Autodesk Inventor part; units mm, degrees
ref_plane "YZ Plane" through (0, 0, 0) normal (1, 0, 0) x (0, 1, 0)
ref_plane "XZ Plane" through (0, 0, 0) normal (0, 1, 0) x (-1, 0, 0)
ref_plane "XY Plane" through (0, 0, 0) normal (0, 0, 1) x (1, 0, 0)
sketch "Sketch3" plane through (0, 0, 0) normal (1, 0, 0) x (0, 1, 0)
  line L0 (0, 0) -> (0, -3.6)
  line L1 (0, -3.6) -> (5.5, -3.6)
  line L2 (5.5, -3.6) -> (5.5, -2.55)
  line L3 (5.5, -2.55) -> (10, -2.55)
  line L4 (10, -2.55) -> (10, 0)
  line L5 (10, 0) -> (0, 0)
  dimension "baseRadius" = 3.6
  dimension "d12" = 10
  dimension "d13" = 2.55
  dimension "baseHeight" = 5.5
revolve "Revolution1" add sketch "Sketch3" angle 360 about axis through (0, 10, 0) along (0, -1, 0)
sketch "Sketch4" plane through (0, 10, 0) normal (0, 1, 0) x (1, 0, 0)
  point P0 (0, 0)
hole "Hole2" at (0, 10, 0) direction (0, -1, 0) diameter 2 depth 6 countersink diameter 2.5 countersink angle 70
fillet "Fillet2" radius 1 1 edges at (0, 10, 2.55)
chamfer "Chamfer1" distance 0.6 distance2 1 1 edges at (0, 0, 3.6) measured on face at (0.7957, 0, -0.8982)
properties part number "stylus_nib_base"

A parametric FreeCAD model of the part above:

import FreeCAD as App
import Part
import Sketcher
Q = App.Units.Quantity


def edges_at(feature, points):
    """Names of the edges that pass closest to the given points."""
    edges = feature.Shape.Edges
    near = lambda p: min(range(len(edges)), key=lambda i: edges[i].distToShape(Part.Vertex(*p))[0])
    return sorted({f"Edge{near(p) + 1}" for p in points})

doc = App.newDocument("Part")
params = doc.addObject("Spreadsheet::Sheet", "Params")
for row, (alias, value) in enumerate([
    ("sketch1_width", "10 mm"),
    ("sketch1_width2", "5.5 mm"),
    ("sketch1_height", "3.6 mm"),
    ("sketch1_height2", "2.55 mm"),
    ("revolution_angle", "360 deg"),
    ("sketch2_diameter", "2 mm"),
    ("hole_diameter", "2 mm"),
    ("hole_depth", "6 mm"),
    ("hole_csink_diameter", "2.5 mm"),
    ("fillet_radius", "1 mm"),
    ("chamfer_size", "0.6 mm"),
    ("chamfer_size2", "1 mm"),
], start=1):
    params.set(f"A{row}", alias)
    params.set(f"B{row}", "=" + value)
    params.setAlias(f"B{row}", alias)

body = doc.addObject("PartDesign::Body", "Body")

# Sketch on YZ plane
sketch1 = body.newObject("Sketcher::SketchObject", "Sketch")
sketch1.AttachmentSupport = (doc.getObject("YZ_Plane"), [""])
sketch1.MapMode = "FlatFace"
sketch1.addGeometry([
    Part.LineSegment(App.Vector(10, 0, 0), App.Vector(0, 0, 0)),  # 0
    Part.LineSegment(App.Vector(0, 0, 0), App.Vector(0, -3.6, 0)),  # 1
    Part.LineSegment(App.Vector(0, -3.6, 0), App.Vector(5.5, -3.6, 0)),  # 2
    Part.LineSegment(App.Vector(5.5, -3.6, 0), App.Vector(5.5, -2.5, 0)),  # 3
    Part.LineSegment(App.Vector(5.5, -2.5, 0), App.Vector(10, -2.5, 0)),  # 4
    Part.LineSegment(App.Vector(10, -2.5, 0), App.Vector(10, 0, 0)),  # 5
], False)
sketch1.addConstraint([
    Sketcher.Constraint("Coincident", 0, 2, 1, 1),
    Sketcher.Constraint("Coincident", 1, 2, 2, 1),
    Sketcher.Constraint("Coincident", 2, 2, 3, 1),
    Sketcher.Constraint("Coincident", 3, 2, 4, 1),
    Sketcher.Constraint("Coincident", 4, 2, 5, 1),
    Sketcher.Constraint("Coincident", 5, 2, 0, 1),
    Sketcher.Constraint("Horizontal", 0),
    Sketcher.Constraint("Vertical", 1),
    Sketcher.Constraint("Horizontal", 2),
    Sketcher.Constraint("Vertical", 3),
    Sketcher.Constraint("Horizontal", 4),
    Sketcher.Constraint("Vertical", 5),
    Sketcher.Constraint("Coincident", 0, 2, -1, 1),
    Sketcher.Constraint("DistanceX", 0, 2, 0, 1, Q("10 mm")),
    Sketcher.Constraint("DistanceX", 2, 1, 2, 2, Q("5.5 mm")),
    Sketcher.Constraint("DistanceY", 1, 2, 1, 1, Q("3.6 mm")),
    Sketcher.Constraint("DistanceY", 5, 1, 5, 2, Q("2.55 mm")),
])
sketch1.setExpression("Constraints[13]", "Params.sketch1_width")
sketch1.setExpression("Constraints[14]", "Params.sketch1_width2")
sketch1.setExpression("Constraints[15]", "Params.sketch1_height")
sketch1.setExpression("Constraints[16]", "Params.sketch1_height2")
revolution = body.newObject("PartDesign::Revolution", "Revolution")
revolution.Profile = sketch1
revolution.ReferenceAxis = (sketch1, ["H_Axis"])
revolution.setExpression("Angle", "Params.revolution_angle")

# Sketch on XZ plane
sketch2 = body.newObject("Sketcher::SketchObject", "Sketch001")
sketch2.AttachmentSupport = (doc.getObject("XZ_Plane"), [""])
sketch2.MapMode = "FlatFace"
sketch2.AttachmentOffset = App.Placement(App.Vector(0, 0, -10), App.Rotation())
sketch2.addGeometry(Part.Circle(App.Vector(0, 0, 0), App.Vector(0, 0, 1), 1), False)
sketch2.addConstraint([
    Sketcher.Constraint("Coincident", 0, 3, -1, 1),
    Sketcher.Constraint("Diameter", 0, Q("2 mm")),
])
sketch2.setExpression("Constraints[1]", "Params.sketch2_diameter")
doc.recompute()
hole = body.newObject("PartDesign::Hole", "Hole")
hole.Profile = sketch2
hole.ThreadType = "None"
hole.setExpression("Diameter", "Params.hole_diameter")
hole.DepthType = "Dimension"
hole.setExpression("Depth", "Params.hole_depth")
hole.DrillPoint = "Flat"
hole.HoleCutType = "Countersink"
hole.setExpression("HoleCutDiameter", "Params.hole_csink_diameter")
hole.HoleCutCountersinkAngle = 70
hole.Reversed = True
doc.recompute()

fillet = body.newObject("PartDesign::Fillet", "Fillet")
fillet.Base = (hole, edges_at(hole, [(0, 10, 2.55)]))
fillet.setExpression("Radius", "Params.fillet_radius")
doc.recompute()

chamfer = body.newObject("PartDesign::Chamfer", "Chamfer")
chamfer.Base = (fillet, edges_at(fillet, [(0, 0, 3.6)]))
chamfer.ChamferType = "Two distances"
chamfer.setExpression("Size", "Params.chamfer_size")
chamfer.setExpression("Size2", "Params.chamfer_size2")
chamfer.FlipDirection = True

doc.recompute()
